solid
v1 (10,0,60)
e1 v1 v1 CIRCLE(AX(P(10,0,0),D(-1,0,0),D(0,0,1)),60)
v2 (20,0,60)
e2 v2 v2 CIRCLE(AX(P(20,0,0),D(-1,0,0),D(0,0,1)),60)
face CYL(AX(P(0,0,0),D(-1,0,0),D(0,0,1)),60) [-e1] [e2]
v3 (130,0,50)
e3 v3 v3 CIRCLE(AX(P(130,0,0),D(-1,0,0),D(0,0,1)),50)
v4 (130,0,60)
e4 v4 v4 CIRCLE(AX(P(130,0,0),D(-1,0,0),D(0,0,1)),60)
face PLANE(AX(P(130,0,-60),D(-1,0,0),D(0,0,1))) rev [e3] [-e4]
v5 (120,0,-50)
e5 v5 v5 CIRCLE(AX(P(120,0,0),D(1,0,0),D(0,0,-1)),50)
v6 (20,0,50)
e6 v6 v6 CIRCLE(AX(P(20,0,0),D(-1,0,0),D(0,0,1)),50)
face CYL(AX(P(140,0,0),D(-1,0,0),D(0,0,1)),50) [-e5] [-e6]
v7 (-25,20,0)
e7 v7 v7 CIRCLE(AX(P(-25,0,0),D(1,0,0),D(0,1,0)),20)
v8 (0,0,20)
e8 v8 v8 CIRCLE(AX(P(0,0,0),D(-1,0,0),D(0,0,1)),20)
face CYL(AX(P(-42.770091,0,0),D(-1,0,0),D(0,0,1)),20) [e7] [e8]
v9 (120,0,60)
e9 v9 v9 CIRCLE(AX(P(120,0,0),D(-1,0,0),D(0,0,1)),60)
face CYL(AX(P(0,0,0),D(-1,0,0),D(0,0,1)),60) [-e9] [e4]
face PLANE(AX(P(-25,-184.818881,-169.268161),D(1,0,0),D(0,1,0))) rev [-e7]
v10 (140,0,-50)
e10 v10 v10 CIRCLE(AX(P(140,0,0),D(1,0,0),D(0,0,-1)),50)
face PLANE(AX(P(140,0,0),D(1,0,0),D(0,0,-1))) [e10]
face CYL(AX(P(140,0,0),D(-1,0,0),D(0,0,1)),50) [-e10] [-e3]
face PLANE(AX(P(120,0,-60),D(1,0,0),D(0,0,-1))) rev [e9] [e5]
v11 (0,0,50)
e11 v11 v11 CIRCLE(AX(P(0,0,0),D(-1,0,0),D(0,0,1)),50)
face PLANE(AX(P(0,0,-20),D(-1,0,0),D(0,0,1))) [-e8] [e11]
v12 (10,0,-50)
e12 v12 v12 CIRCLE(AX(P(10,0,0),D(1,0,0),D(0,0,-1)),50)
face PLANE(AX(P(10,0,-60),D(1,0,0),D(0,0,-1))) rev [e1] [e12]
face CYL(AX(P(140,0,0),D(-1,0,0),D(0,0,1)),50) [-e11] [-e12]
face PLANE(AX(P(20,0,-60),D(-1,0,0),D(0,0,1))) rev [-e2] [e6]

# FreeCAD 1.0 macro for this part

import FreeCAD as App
import Part
import Sketcher

V = App.Vector
Q = App.Units.Quantity


def edges_at(feature, points):
    """Names of the edges that pass closest to the given points."""
    edges = feature.Shape.Edges
    near = lambda p: min(range(len(edges)), key=lambda i: edges[i].distToShape(Part.Vertex(*p))[0])
    return sorted({f"Edge{near(p) + 1}" for p in points})


def add_polygon(sketch, points):
    """Adds a closed chain of lines whose ends are joined by coincident constraints."""
    first, n = sketch.GeometryCount, len(points)
    for a, b in zip(points, points[1:] + points[:1]):
        sketch.addGeometry(Part.LineSegment(App.Vector(*a, 0), App.Vector(*b, 0)), False)
    for i in range(n):
        sketch.addConstraint(Sketcher.Constraint("Coincident", first + i, 2, first + (i + 1) % n, 1))

doc = App.newDocument("Part")
body = doc.addObject("PartDesign::Body", "Body")

sketch1 = body.newObject("Sketcher::SketchObject", "Sketch")
sketch1.AttachmentSupport = (doc.getObject("YZ_Plane"), [""])
sketch1.MapMode = "FlatFace"
sketch1.addGeometry(Part.Circle(V(0, 0, 0), V(0, 0, 1), 50), False)
sketch1.addConstraint(Sketcher.Constraint("Coincident", 0, 3, -1, 1))
sketch1.addConstraint(Sketcher.Constraint("Diameter", 0, Q("100 mm")))
pad1 = body.newObject("PartDesign::Pad", "Pad")
pad1.Profile = sketch1
pad1.Length = 140

sketch2 = body.newObject("Sketcher::SketchObject", "Sketch001")
sketch2.AttachmentSupport = (doc.getObject("XZ_Plane"), [""])
sketch2.MapMode = "FlatFace"
add_polygon(sketch2, [(10, -60), (10, 0), (20, 0), (20, -60)])
add_polygon(sketch2, [(120, -60), (120, 0), (130, 0), (130, -60)])
sketch2.addConstraint(Sketcher.Constraint("Vertical", 0))
sketch2.addConstraint(Sketcher.Constraint("Horizontal", 1))
sketch2.addConstraint(Sketcher.Constraint("Vertical", 2))
sketch2.addConstraint(Sketcher.Constraint("Horizontal", 3))
sketch2.addConstraint(Sketcher.Constraint("Vertical", 4))
sketch2.addConstraint(Sketcher.Constraint("Horizontal", 5))
sketch2.addConstraint(Sketcher.Constraint("Vertical", 6))
sketch2.addConstraint(Sketcher.Constraint("Horizontal", 7))
sketch2.addConstraint(Sketcher.Constraint("PointOnObject", 0, 2, -1))
sketch2.addConstraint(Sketcher.Constraint("PointOnObject", 4, 2, -1))
sketch2.addConstraint(Sketcher.Constraint("Horizontal", 3, 2, 6, 2))
sketch2.addConstraint(Sketcher.Constraint("Equal", 3, 5))
sketch2.addConstraint(Sketcher.Constraint("DistanceX", 1, 1, 1, 2, Q("10 mm")))
sketch2.addConstraint(Sketcher.Constraint("DistanceY", 0, 1, 0, 2, Q("60 mm")))
sketch2.addConstraint(Sketcher.Constraint("DistanceX", -1, 1, 0, 2, Q("10 mm")))
sketch2.addConstraint(Sketcher.Constraint("DistanceX", -1, 1, 4, 2, Q("120 mm")))
revolution = body.newObject("PartDesign::Revolution", "Revolution")
revolution.Profile = sketch2
revolution.ReferenceAxis = (sketch2, ["H_Axis"])
revolution.Angle = 360

sketch3 = body.newObject("Sketcher::SketchObject", "Sketch002")
sketch3.AttachmentSupport = (doc.getObject("YZ_Plane"), [""])
sketch3.MapMode = "FlatFace"
sketch3.AttachmentOffset = App.Placement(V(0, 0, -100), App.Rotation())
sketch3.addGeometry(Part.Circle(V(0, 0, 0), V(0, 0, 1), 50), False)
sketch3.addConstraint(Sketcher.Constraint("Coincident", 0, 3, -1, 1))
sketch3.addConstraint(Sketcher.Constraint("Diameter", 0, Q("100 mm")))
pad2 = body.newObject("PartDesign::Pad", "Pad001")
pad2.Profile = sketch3
pad2.Length = 100

sketch4 = body.newObject("Sketcher::SketchObject", "Sketch003")
sketch4.AttachmentSupport = (doc.getObject("YZ_Plane"), [""])
sketch4.MapMode = "FlatFace"
sketch4.AttachmentOffset = App.Placement(V(0, 0, -100), App.Rotation())
sketch4.addGeometry(Part.Circle(V(0, 0, 0), V(0, 0, 1), 169), False)
sketch4.addConstraint(Sketcher.Constraint("Coincident", 0, 3, -1, 1))
sketch4.addConstraint(Sketcher.Constraint("Diameter", 0, Q("338.536323 mm")))
pad3 = body.newObject("PartDesign::Pad", "Pad002")
pad3.Profile = sketch4
pad3.Length = 10
pad3.Reversed = True
doc.recompute()

fillet = body.newObject("PartDesign::Fillet", "Fillet")
fillet.Base = (pad3, edges_at(pad3, [(-100, 0, -50)]))
fillet.Radius = 50

sketch5 = body.newObject("Sketcher::SketchObject", "Sketch004")
sketch5.AttachmentSupport = (doc.getObject("XY_Plane"), [""])
sketch5.MapMode = "FlatFace"
add_polygon(sketch5, [(-246, 174), (-246, -185), (-25, -185), (-25, 174)])
sketch5.addConstraint(Sketcher.Constraint("Vertical", 0))
sketch5.addConstraint(Sketcher.Constraint("Horizontal", 1))
sketch5.addConstraint(Sketcher.Constraint("Vertical", 2))
sketch5.addConstraint(Sketcher.Constraint("Horizontal", 3))
sketch5.addConstraint(Sketcher.Constraint("DistanceX", 1, 2, -1, 1, Q("25 mm")))
sketch5.addConstraint(Sketcher.Constraint("DistanceX", 1, 1, 1, 2, Q("221.299471 mm")))
sketch5.addConstraint(Sketcher.Constraint("DistanceY", 0, 2, 0, 1, Q("358.52447 mm")))
sketch5.addConstraint(Sketcher.Constraint("DistanceY", 0, 2, -1, 1, Q("184.818881 mm")))
pocket1 = body.newObject("PartDesign::Pocket", "Pocket")
pocket1.Profile = sketch5
pocket1.Type = "ThroughAll"
pocket1.Midplane = True

sketch6 = body.newObject("Sketcher::SketchObject", "Sketch005")
sketch6.AttachmentSupport = (doc.getObject("XZ_Plane"), [""])
sketch6.MapMode = "FlatFace"
add_polygon(sketch6, [(-37, -20), (0, -20), (0, -63), (-45, -53)])
sketch6.addConstraint(Sketcher.Constraint("Horizontal", 0))
sketch6.addConstraint(Sketcher.Constraint("Vertical", 1))
sketch6.addConstraint(Sketcher.Constraint("PointOnObject", 0, 2, -2))
sketch6.addConstraint(Sketcher.Constraint("DistanceY", 0, 2, -1, 1, Q("20 mm")))
sketch6.addConstraint(Sketcher.Constraint("DistanceX", 0, 1, 0, 2, Q("37.123591 mm")))
sketch6.addConstraint(Sketcher.Constraint("DistanceY", 1, 2, 1, 1, Q("43.419468 mm")))
sketch6.addConstraint(Sketcher.Constraint("DistanceX", 2, 2, -1, 1, Q("45.13064 mm")))
sketch6.addConstraint(Sketcher.Constraint("Distance", 2, Q("46.250804 mm")))
groove = body.newObject("PartDesign::Groove", "Groove")
groove.Profile = sketch6
groove.ReferenceAxis = (sketch6, ["H_Axis"])
groove.Angle = 360

doc.recompute()
